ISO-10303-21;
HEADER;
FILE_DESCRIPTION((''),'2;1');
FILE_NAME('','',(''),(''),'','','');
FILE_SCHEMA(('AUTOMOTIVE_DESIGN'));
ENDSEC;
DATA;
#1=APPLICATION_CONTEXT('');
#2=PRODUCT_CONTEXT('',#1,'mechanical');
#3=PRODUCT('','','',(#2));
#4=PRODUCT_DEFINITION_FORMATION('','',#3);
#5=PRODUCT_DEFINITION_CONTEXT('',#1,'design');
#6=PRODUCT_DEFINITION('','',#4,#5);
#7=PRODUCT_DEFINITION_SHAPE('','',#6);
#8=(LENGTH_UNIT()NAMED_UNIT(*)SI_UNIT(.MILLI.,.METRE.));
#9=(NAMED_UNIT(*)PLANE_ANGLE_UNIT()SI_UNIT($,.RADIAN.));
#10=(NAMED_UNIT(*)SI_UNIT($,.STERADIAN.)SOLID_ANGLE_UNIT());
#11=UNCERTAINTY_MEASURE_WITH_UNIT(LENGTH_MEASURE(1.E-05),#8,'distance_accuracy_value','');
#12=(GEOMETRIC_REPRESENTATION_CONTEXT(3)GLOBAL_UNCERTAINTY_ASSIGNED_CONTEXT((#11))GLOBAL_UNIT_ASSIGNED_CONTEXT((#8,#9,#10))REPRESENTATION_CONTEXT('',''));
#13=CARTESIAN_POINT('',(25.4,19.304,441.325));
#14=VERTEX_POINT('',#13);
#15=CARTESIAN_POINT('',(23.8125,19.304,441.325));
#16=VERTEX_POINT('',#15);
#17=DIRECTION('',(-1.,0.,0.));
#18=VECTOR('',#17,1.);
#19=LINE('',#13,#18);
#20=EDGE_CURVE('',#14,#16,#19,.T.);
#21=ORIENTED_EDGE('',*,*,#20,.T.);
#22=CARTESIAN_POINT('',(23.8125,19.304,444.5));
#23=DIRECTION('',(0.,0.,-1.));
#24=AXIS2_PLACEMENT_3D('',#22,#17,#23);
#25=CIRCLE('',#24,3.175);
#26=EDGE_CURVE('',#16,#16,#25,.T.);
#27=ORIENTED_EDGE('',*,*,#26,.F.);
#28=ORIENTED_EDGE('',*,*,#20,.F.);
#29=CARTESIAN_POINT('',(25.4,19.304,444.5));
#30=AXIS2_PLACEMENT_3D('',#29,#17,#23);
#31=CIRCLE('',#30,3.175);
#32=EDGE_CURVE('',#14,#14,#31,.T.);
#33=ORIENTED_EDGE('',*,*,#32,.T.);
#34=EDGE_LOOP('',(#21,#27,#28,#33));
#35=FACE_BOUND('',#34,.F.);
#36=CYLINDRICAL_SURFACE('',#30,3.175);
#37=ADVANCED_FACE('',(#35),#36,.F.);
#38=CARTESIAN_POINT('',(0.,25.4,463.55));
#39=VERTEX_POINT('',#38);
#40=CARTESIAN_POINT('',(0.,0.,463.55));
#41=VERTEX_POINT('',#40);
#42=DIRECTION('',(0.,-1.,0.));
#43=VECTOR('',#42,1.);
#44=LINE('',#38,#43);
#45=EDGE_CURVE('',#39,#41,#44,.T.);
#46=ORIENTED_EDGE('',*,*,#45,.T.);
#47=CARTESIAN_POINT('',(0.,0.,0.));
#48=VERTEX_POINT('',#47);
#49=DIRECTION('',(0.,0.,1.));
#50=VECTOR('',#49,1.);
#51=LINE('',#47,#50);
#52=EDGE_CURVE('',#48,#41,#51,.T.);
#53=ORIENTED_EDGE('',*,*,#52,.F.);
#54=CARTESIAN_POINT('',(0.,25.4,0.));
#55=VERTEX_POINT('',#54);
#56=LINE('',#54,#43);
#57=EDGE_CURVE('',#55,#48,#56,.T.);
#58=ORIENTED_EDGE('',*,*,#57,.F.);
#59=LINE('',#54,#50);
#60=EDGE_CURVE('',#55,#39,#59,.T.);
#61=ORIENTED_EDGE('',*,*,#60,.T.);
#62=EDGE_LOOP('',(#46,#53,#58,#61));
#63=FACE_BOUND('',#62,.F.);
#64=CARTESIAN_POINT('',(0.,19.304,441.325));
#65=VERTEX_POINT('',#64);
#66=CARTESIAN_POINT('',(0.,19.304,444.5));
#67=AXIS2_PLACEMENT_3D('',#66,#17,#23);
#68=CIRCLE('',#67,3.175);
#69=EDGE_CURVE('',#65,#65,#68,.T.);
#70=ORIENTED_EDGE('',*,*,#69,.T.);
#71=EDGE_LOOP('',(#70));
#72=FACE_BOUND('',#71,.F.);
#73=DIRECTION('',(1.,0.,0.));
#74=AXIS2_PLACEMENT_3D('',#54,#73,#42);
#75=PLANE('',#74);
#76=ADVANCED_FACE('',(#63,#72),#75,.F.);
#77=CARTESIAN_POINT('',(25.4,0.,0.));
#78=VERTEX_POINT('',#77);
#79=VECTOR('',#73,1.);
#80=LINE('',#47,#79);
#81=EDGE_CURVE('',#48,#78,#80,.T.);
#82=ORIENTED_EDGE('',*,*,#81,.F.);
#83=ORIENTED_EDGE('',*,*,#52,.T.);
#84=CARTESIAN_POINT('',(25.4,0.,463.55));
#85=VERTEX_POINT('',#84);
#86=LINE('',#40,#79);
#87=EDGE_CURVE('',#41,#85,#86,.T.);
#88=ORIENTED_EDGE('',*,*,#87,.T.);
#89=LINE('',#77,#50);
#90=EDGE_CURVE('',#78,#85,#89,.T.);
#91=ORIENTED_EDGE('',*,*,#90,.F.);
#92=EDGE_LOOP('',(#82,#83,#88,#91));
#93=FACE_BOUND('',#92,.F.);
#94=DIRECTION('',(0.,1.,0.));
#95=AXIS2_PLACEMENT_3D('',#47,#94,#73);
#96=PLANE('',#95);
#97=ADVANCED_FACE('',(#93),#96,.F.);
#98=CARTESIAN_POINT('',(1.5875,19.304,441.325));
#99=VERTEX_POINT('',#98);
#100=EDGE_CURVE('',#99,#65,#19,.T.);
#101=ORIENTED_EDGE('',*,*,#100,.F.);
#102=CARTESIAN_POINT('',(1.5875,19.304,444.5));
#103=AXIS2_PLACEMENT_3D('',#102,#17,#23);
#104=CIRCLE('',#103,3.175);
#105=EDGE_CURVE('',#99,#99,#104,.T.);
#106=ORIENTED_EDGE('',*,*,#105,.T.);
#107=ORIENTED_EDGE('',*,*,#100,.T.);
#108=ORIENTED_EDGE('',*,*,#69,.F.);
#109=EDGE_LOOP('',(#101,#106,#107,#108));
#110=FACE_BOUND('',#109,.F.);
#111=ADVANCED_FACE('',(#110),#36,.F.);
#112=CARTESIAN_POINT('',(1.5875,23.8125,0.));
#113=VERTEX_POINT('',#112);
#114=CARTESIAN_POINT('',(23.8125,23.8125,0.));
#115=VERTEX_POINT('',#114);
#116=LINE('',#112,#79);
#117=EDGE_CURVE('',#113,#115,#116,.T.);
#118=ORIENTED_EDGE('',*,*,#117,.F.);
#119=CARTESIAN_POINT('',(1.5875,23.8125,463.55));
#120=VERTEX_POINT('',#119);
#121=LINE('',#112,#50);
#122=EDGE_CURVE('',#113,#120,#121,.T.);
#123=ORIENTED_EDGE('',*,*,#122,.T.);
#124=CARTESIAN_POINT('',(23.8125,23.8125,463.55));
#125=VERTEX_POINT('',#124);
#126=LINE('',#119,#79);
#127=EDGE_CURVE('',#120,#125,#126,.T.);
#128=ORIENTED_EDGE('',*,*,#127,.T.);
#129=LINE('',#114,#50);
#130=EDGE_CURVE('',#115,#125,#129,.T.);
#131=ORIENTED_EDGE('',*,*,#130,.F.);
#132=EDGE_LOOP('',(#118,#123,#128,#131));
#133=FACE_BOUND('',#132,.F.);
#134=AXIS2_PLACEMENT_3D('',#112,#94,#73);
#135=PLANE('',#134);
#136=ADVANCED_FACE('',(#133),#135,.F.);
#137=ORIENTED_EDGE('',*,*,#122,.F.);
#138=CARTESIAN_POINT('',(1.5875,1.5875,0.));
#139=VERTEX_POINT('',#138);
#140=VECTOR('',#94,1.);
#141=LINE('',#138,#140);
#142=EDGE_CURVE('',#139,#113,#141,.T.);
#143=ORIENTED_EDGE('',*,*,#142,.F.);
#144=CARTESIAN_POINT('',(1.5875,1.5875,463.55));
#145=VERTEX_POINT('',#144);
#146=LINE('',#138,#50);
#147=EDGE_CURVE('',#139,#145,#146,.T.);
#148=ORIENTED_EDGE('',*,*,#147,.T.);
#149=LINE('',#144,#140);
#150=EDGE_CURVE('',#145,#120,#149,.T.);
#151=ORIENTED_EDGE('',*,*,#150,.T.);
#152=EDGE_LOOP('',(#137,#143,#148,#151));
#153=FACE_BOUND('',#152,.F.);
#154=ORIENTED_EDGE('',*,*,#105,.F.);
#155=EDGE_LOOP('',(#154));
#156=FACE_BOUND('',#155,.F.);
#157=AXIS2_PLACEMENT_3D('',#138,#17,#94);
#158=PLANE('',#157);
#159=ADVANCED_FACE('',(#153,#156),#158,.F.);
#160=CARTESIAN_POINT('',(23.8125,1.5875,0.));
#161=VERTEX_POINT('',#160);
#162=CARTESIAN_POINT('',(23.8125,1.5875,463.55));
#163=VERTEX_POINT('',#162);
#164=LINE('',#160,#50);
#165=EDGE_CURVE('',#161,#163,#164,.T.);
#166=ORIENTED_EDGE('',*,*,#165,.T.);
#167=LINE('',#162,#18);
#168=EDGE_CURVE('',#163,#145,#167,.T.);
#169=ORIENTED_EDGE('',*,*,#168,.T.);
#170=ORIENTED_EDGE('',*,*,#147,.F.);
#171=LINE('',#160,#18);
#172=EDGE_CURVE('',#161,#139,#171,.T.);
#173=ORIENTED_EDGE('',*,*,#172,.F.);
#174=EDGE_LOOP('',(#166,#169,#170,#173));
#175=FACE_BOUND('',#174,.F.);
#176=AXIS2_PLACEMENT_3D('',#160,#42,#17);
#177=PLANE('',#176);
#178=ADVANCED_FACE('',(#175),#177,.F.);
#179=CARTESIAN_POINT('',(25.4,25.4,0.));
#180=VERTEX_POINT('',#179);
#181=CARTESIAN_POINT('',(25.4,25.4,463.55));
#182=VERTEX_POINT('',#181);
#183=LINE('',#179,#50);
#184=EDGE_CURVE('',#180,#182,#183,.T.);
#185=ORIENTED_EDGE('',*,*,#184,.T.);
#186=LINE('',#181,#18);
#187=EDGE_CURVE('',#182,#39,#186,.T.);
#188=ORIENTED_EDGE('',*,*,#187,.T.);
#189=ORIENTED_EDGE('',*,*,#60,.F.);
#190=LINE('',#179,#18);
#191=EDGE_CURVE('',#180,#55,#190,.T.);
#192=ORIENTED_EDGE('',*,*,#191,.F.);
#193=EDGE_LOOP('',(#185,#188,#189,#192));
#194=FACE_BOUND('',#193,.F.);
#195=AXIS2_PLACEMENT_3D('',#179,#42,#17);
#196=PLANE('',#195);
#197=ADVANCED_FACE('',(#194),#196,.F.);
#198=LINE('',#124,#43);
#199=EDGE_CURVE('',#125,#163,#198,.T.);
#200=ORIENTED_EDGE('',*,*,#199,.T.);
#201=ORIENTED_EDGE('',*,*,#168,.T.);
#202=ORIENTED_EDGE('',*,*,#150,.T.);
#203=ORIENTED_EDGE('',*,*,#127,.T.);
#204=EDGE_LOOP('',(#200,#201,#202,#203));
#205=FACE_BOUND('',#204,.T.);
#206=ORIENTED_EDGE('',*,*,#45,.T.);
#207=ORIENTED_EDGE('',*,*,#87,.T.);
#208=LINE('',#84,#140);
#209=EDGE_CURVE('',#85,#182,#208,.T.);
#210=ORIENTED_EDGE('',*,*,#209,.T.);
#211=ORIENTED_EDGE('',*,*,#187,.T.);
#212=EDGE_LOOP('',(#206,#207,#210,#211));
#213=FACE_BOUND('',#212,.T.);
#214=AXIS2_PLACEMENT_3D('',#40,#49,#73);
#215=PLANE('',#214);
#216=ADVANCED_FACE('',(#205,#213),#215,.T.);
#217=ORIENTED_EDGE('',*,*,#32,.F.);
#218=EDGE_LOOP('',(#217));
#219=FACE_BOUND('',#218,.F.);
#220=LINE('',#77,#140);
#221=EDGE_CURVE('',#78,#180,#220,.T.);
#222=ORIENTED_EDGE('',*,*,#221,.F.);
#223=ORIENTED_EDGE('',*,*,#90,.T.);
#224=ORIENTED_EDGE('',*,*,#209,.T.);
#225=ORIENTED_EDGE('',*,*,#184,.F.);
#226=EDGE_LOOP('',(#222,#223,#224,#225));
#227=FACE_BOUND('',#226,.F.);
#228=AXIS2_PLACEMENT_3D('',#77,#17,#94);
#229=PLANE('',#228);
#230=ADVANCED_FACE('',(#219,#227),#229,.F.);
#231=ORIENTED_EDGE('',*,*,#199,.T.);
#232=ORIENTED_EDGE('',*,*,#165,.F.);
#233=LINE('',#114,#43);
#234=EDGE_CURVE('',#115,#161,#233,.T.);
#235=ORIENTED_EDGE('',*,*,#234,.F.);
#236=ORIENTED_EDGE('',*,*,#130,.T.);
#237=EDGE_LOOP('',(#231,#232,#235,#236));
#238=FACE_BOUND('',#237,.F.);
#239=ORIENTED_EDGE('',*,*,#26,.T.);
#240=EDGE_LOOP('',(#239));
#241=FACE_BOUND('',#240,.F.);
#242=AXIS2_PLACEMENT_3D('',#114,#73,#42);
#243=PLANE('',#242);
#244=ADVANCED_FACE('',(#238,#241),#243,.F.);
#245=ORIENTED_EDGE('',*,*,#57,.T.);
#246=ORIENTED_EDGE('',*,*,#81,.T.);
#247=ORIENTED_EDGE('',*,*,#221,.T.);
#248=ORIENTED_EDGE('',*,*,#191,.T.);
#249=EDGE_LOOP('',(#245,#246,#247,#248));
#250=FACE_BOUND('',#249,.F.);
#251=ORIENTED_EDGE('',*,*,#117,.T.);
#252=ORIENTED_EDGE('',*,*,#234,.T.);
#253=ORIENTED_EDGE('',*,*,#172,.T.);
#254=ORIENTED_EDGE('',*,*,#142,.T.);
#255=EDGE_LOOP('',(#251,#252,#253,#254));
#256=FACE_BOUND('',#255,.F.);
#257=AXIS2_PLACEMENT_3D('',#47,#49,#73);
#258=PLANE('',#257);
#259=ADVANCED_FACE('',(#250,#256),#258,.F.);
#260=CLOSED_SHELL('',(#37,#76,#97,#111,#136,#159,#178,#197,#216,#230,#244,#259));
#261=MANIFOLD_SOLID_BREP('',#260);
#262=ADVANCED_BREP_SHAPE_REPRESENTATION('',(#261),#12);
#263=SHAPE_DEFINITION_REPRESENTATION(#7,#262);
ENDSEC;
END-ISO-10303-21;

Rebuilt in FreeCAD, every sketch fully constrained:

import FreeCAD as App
import Part
import Sketcher
Q = App.Units.Quantity

doc = App.newDocument("Part")
params = doc.addObject("Spreadsheet::Sheet", "Params")
for row, (alias, value) in enumerate([
    ("sketch1_width", "1 in"),
    ("pad1_length", "18.25 in"),
    ("sketch2_diameter", "0.25 in"),
    ("hole_diameter", "0.25 in"),
], start=1):
    params.set(f"A{row}", alias)
    params.set(f"B{row}", "=" + value)
    params.setAlias(f"B{row}", alias)

body = doc.addObject("PartDesign::Body", "Body")

# Sketch on XY plane
sketch1 = body.newObject("Sketcher::SketchObject", "Sketch")
sketch1.AttachmentSupport = (doc.getObject("XY_Plane"), [""])
sketch1.MapMode = "FlatFace"
sketch1.addGeometry([
    Part.LineSegment(App.Vector(0, 25.4, 0), App.Vector(0, 0, 0)),  # 0
    Part.LineSegment(App.Vector(0, 0, 0), App.Vector(25.4, 0, 0)),  # 1
    Part.LineSegment(App.Vector(25.4, 0, 0), App.Vector(25.4, 25.4, 0)),  # 2
    Part.LineSegment(App.Vector(25.4, 25.4, 0), App.Vector(0, 25.4, 0)),  # 3
    Part.LineSegment(App.Vector(1.5875, 1.5875, 0), App.Vector(1.5875, 23.8125, 0)),  # 4
    Part.LineSegment(App.Vector(1.5875, 23.8125, 0), App.Vector(23.8125, 23.8125, 0)),  # 5
    Part.LineSegment(App.Vector(23.8125, 23.8125, 0), App.Vector(23.8125, 1.5875, 0)),  # 6
    Part.LineSegment(App.Vector(23.8125, 1.5875, 0), App.Vector(1.5875, 1.5875, 0)),  # 7
], False)
sketch1.addConstraint([
    Sketcher.Constraint("Coincident", 0, 2, 1, 1),
    Sketcher.Constraint("Coincident", 1, 2, 2, 1),
    Sketcher.Constraint("Coincident", 2, 2, 3, 1),
    Sketcher.Constraint("Coincident", 3, 2, 0, 1),
    Sketcher.Constraint("Coincident", 4, 2, 5, 1),
    Sketcher.Constraint("Coincident", 5, 2, 6, 1),
    Sketcher.Constraint("Coincident", 6, 2, 7, 1),
    Sketcher.Constraint("Coincident", 7, 2, 4, 1),
    Sketcher.Constraint("Vertical", 0),
    Sketcher.Constraint("Horizontal", 1),
    Sketcher.Constraint("Vertical", 2),
    Sketcher.Constraint("Horizontal", 3),
    Sketcher.Constraint("Vertical", 4),
    Sketcher.Constraint("Horizontal", 5),
    Sketcher.Constraint("Vertical", 6),
    Sketcher.Constraint("Horizontal", 7),
    Sketcher.Constraint("Coincident", 0, 2, -1, 1),
    Sketcher.Constraint("Equal", 3, 0),
    Sketcher.Constraint("Equal", 7, 4),
    Sketcher.Constraint("DistanceX", 1, 1, 1, 2, Q("1 in")),
    Sketcher.Constraint("DistanceX", -1, 1, 4, 2, Q("0.0625 in")),
    Sketcher.Constraint("DistanceY", -1, 1, 6, 2, Q("0.0625 in")),
    Sketcher.Constraint("DistanceY", 4, 2, 3, 2, Q("0.0625 in")),
])
sketch1.setExpression("Constraints[19]", "Params.sketch1_width")
pad1 = body.newObject("PartDesign::Pad", "Pad")
pad1.Profile = sketch1
pad1.setExpression("Length", "Params.pad1_length")

# Sketch on YZ plane
sketch2 = body.newObject("Sketcher::SketchObject", "Sketch001")
sketch2.AttachmentSupport = (doc.getObject("YZ_Plane"), [""])
sketch2.MapMode = "FlatFace"
sketch2.AttachmentOffset = App.Placement(App.Vector(0, 0, 1 * 25.4), App.Rotation())
sketch2.addGeometry(Part.Circle(App.Vector(19.304, 444.5, 0), App.Vector(0, 0, 1), 3.175), False)
sketch2.addConstraint([
    Sketcher.Constraint("Diameter", 0, Q("0.25 in")),
    Sketcher.Constraint("DistanceY", -1, 1, 0, 3, Q("17.5 in")),
    Sketcher.Constraint("DistanceX", -1, 1, 0, 3, Q("0.76 in")),
])
sketch2.setExpression("Constraints[0]", "Params.sketch2_diameter")
doc.recompute()
hole = body.newObject("PartDesign::Hole", "Hole")
hole.Profile = sketch2
hole.ThreadType = "None"
hole.setExpression("Diameter", "Params.hole_diameter")
hole.DepthType = "ThroughAll"

doc.recompute()
